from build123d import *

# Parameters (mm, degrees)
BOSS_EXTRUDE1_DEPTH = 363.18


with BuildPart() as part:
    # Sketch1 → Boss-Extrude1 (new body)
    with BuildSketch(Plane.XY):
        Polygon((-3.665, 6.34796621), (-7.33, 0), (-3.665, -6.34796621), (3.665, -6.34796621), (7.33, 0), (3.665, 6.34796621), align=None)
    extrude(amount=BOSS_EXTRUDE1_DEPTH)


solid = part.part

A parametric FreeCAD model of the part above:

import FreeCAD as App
import Part
import Sketcher

V = App.Vector
Q = App.Units.Quantity


def add_polygon(sketch, points):
    """Adds a closed chain of lines whose ends are joined by coincident constraints."""
    first, n = sketch.GeometryCount, len(points)
    for a, b in zip(points, points[1:] + points[:1]):
        sketch.addGeometry(Part.LineSegment(App.Vector(*a, 0), App.Vector(*b, 0)), False)
    for i in range(n):
        sketch.addConstraint(Sketcher.Constraint("Coincident", first + i, 2, first + (i + 1) % n, 1))

doc = App.newDocument("Part")
body = doc.addObject("PartDesign::Body", "Body")

sketch1 = doc.addObject("Sketcher::SketchObject", "Sketch")
body.addObject(sketch1)
sketch1.AttachmentSupport = (doc.XY_Plane, [""])
sketch1.MapMode = "FlatFace"
add_polygon(sketch1, [(-4, 6), (-7, 0), (-4, -6), (4, -6), (7, 0), (4, 6)])
sketch1.addConstraint([
    Sketcher.Constraint("Horizontal", 2),
    Sketcher.Constraint("Horizontal", 5),
    Sketcher.Constraint("Symmetric", 0, 2, 3, 2, -1, 1),
    Sketcher.Constraint("Symmetric", 1, 2, 4, 2, -1, 1),
    Sketcher.Constraint("PointOnObject", 0, 2, -1),
    Sketcher.Constraint("Parallel", 0, 3),
    Sketcher.Constraint("Vertical", 2, 2, 4, 2),
    Sketcher.Constraint("Angle", 0, Q("-120 deg")),
    Sketcher.Constraint("DistanceX", 2, 1, 2, 2, Q("7.33 mm")),
    Sketcher.Constraint("Distance", 0, Q("7.33 mm")),
])
pad1 = doc.addObject("PartDesign::Pad", "Pad")
body.addObject(pad1)
pad1.Profile = sketch1
pad1.Length = 363.18

doc.recompute()
